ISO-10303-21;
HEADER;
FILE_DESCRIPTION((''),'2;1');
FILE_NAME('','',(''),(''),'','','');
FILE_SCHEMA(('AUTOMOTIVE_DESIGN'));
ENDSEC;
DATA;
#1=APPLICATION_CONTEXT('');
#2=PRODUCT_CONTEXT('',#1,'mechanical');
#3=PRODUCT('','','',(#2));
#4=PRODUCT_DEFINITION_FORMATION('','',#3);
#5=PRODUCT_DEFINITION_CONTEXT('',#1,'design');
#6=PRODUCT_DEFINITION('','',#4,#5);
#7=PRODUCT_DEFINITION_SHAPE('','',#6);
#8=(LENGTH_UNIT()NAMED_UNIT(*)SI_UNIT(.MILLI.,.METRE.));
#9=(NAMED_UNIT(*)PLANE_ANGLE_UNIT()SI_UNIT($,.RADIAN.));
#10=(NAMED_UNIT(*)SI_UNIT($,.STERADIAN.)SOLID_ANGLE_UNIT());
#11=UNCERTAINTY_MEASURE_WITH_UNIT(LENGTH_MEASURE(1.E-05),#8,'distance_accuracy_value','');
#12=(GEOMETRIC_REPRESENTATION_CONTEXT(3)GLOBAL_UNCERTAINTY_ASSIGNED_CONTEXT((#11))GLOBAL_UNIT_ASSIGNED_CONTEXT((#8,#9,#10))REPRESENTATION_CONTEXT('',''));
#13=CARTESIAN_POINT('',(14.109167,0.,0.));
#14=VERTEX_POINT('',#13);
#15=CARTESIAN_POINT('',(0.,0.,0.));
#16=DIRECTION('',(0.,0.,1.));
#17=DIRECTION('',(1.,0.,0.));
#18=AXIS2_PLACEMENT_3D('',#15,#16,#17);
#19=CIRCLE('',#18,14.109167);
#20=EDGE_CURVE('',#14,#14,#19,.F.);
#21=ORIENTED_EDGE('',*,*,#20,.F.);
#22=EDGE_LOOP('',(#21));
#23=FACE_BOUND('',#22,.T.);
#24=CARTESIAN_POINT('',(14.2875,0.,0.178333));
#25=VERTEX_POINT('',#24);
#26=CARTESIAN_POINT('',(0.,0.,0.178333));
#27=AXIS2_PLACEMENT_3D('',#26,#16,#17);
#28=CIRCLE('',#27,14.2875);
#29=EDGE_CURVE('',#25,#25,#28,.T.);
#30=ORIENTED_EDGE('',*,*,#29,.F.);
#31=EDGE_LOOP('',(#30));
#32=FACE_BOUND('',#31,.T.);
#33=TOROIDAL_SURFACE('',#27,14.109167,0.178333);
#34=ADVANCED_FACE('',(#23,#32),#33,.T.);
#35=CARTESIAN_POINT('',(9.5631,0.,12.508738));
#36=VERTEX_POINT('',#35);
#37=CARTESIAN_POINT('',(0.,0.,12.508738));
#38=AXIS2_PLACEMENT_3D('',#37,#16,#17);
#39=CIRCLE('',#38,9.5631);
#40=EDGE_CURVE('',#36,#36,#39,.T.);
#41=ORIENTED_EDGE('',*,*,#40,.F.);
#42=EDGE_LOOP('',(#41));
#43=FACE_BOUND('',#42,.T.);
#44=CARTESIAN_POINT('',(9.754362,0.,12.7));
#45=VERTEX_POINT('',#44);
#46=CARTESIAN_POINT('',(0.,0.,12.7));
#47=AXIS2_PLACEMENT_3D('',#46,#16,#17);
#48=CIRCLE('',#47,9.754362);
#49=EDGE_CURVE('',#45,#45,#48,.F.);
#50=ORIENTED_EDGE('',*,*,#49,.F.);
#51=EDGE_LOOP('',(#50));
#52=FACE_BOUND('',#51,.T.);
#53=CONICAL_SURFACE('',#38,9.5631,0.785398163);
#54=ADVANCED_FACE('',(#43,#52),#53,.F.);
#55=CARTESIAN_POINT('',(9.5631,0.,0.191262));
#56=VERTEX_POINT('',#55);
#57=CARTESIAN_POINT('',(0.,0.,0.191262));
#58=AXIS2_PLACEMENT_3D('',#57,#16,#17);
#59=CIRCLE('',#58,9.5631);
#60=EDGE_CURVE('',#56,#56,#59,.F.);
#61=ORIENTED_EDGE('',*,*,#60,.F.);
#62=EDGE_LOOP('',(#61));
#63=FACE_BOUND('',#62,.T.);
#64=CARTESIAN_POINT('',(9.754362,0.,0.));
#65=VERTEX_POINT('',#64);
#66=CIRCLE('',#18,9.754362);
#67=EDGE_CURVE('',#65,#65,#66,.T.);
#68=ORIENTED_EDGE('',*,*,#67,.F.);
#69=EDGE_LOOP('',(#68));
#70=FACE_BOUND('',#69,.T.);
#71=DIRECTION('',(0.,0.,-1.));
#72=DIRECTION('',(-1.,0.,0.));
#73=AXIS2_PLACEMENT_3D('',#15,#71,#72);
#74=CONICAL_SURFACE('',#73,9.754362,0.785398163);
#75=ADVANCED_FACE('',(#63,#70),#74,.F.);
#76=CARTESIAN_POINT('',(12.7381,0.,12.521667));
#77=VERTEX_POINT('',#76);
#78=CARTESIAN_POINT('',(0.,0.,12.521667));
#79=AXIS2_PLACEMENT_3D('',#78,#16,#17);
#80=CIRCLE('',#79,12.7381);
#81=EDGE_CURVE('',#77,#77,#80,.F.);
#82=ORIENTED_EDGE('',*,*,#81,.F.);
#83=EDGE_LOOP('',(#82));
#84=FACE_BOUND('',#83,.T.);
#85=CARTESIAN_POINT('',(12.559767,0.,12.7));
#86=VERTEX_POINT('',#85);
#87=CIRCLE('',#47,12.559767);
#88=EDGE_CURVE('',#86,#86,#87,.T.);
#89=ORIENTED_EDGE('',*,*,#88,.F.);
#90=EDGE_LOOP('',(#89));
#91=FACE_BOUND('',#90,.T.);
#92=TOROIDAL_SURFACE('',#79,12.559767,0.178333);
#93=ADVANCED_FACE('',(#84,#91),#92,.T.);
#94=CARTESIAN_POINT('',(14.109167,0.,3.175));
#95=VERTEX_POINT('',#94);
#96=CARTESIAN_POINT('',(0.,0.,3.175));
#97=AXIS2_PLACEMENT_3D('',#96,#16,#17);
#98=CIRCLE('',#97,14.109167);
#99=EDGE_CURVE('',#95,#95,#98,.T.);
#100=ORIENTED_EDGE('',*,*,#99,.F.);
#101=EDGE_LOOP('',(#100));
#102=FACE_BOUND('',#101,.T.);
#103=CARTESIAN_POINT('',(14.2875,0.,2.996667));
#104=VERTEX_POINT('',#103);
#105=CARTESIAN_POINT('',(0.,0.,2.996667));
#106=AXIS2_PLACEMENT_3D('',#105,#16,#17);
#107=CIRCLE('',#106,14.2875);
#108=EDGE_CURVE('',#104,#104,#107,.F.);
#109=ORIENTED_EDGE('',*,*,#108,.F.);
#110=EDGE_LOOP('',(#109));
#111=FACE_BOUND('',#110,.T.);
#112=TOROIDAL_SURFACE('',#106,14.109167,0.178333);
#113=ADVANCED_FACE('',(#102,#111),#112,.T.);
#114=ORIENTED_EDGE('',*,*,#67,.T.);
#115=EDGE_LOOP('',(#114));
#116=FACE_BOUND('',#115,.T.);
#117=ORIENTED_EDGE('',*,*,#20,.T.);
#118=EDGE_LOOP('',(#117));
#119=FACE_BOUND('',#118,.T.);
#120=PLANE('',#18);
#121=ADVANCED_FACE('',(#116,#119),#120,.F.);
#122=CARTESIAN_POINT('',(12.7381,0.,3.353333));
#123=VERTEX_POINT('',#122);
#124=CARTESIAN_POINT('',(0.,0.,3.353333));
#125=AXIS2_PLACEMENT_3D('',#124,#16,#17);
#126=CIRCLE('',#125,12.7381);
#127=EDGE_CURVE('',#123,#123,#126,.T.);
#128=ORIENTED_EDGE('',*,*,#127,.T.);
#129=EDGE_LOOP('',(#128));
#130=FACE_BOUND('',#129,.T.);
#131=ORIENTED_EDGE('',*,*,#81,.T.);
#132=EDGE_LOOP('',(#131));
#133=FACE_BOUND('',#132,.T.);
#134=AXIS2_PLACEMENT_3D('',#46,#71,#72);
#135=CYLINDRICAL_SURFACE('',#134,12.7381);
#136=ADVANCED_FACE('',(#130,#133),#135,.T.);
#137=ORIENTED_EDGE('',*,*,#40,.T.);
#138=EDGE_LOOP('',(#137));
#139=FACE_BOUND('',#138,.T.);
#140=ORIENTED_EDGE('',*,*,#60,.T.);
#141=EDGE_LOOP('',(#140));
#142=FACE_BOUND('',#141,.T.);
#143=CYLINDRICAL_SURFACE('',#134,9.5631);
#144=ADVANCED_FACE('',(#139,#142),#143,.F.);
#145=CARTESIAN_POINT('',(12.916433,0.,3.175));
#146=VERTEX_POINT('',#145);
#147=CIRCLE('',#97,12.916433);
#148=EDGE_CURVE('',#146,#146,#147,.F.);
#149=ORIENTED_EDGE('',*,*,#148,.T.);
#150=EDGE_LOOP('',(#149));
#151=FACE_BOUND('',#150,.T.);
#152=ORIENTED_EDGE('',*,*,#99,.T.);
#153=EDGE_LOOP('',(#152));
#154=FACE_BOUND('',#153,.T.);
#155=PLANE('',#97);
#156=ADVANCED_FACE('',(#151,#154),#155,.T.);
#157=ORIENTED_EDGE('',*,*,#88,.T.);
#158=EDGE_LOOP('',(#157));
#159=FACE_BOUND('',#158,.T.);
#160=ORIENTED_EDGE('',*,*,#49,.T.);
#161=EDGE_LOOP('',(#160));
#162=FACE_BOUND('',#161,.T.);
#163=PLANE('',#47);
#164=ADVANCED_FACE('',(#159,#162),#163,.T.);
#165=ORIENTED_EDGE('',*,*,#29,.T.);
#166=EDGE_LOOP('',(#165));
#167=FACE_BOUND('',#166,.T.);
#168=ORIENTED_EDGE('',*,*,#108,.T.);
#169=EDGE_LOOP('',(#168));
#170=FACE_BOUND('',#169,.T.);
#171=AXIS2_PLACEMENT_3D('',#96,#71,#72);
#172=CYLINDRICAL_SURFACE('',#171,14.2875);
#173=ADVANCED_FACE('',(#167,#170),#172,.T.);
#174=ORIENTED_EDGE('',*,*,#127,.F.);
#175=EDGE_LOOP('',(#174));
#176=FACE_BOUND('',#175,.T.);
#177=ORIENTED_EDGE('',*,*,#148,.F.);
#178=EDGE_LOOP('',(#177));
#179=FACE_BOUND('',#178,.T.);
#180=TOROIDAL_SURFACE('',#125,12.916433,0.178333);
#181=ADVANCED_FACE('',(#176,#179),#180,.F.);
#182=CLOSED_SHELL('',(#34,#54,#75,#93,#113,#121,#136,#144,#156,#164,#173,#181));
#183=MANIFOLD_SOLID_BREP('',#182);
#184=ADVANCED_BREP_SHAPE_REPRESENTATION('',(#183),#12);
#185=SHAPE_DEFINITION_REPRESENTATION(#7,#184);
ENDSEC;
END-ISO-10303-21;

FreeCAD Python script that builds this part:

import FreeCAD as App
import Part
import Sketcher
Q = App.Units.Quantity


def edges_at(feature, points):
    """Names of the edges that pass closest to the given points."""
    edges = feature.Shape.Edges
    near = lambda p: min(range(len(edges)), key=lambda i: edges[i].distToShape(Part.Vertex(*p))[0])
    return sorted({f"Edge{near(p) + 1}" for p in points})

doc = App.newDocument("Part")
body = doc.addObject("PartDesign::Body", "Body")

sketch1 = doc.addObject("Sketcher::SketchObject", "Sketch")
body.addObject(sketch1)
sketch1.AttachmentSupport = (doc.XY_Plane, [""])
sketch1.MapMode = "FlatFace"
sketch1.addGeometry(Part.Circle(App.Vector(0, 0, 0), App.Vector(0, 0, 1), 13), False)
sketch1.addGeometry(Part.Circle(App.Vector(0, 0, 0), App.Vector(0, 0, 1), 10), False)
sketch1.addConstraint(Sketcher.Constraint("Coincident", 0, 3, -1, 1))
sketch1.addConstraint(Sketcher.Constraint("Coincident", 1, 3, -1, 1))
sketch1.addConstraint(Sketcher.Constraint("Diameter", 0, Q("1.003 in")))
sketch1.addConstraint(Sketcher.Constraint("Diameter", 1, Q("0.753 in")))
pad1 = doc.addObject("PartDesign::Pad", "Pad")
body.addObject(pad1)
pad1.Profile = sketch1
pad1.Length = Q("0.5 in")

sketch2 = doc.addObject("Sketcher::SketchObject", "Sketch001")
body.addObject(sketch2)
sketch2.AttachmentSupport = (doc.XY_Plane, [""])
sketch2.MapMode = "FlatFace"
sketch2.addGeometry(Part.Circle(App.Vector(0, 0, 0), App.Vector(0, 0, 1), 14), False)
sketch2.addGeometry(Part.Circle(App.Vector(0, 0, 0), App.Vector(0, 0, 1), 13), False)
sketch2.addConstraint(Sketcher.Constraint("Coincident", 0, 3, -1, 1))
sketch2.addConstraint(Sketcher.Constraint("Coincident", 1, 3, -1, 1))
sketch2.addConstraint(Sketcher.Constraint("Diameter", 0, Q("1.125 in")))
sketch2.addConstraint(Sketcher.Constraint("Diameter", 1, Q("1.003 in")))
pad2 = doc.addObject("PartDesign::Pad", "Pad001")
body.addObject(pad2)
pad2.Profile = sketch2
pad2.Length = Q("0.125 in")
doc.recompute()

chamfer = doc.addObject("PartDesign::Chamfer", "Chamfer")
body.addObject(chamfer)
chamfer.Base = (pad2, edges_at(pad2, [(-9.563, 0, 0), (-9.563, 0, 12.7)]))
chamfer.Size = 0.191262
doc.recompute()

fillet = doc.addObject("PartDesign::Fillet", "Fillet")
body.addObject(fillet)
fillet.Base = (chamfer, edges_at(chamfer, [
    (-14.287, 0, 3.175),
    (-14.287, 0, 0),
    (-12.738, 0, 3.175),
    (-12.738, 0, 12.7),
]))
fillet.Radius = 0.178333

doc.recompute()
